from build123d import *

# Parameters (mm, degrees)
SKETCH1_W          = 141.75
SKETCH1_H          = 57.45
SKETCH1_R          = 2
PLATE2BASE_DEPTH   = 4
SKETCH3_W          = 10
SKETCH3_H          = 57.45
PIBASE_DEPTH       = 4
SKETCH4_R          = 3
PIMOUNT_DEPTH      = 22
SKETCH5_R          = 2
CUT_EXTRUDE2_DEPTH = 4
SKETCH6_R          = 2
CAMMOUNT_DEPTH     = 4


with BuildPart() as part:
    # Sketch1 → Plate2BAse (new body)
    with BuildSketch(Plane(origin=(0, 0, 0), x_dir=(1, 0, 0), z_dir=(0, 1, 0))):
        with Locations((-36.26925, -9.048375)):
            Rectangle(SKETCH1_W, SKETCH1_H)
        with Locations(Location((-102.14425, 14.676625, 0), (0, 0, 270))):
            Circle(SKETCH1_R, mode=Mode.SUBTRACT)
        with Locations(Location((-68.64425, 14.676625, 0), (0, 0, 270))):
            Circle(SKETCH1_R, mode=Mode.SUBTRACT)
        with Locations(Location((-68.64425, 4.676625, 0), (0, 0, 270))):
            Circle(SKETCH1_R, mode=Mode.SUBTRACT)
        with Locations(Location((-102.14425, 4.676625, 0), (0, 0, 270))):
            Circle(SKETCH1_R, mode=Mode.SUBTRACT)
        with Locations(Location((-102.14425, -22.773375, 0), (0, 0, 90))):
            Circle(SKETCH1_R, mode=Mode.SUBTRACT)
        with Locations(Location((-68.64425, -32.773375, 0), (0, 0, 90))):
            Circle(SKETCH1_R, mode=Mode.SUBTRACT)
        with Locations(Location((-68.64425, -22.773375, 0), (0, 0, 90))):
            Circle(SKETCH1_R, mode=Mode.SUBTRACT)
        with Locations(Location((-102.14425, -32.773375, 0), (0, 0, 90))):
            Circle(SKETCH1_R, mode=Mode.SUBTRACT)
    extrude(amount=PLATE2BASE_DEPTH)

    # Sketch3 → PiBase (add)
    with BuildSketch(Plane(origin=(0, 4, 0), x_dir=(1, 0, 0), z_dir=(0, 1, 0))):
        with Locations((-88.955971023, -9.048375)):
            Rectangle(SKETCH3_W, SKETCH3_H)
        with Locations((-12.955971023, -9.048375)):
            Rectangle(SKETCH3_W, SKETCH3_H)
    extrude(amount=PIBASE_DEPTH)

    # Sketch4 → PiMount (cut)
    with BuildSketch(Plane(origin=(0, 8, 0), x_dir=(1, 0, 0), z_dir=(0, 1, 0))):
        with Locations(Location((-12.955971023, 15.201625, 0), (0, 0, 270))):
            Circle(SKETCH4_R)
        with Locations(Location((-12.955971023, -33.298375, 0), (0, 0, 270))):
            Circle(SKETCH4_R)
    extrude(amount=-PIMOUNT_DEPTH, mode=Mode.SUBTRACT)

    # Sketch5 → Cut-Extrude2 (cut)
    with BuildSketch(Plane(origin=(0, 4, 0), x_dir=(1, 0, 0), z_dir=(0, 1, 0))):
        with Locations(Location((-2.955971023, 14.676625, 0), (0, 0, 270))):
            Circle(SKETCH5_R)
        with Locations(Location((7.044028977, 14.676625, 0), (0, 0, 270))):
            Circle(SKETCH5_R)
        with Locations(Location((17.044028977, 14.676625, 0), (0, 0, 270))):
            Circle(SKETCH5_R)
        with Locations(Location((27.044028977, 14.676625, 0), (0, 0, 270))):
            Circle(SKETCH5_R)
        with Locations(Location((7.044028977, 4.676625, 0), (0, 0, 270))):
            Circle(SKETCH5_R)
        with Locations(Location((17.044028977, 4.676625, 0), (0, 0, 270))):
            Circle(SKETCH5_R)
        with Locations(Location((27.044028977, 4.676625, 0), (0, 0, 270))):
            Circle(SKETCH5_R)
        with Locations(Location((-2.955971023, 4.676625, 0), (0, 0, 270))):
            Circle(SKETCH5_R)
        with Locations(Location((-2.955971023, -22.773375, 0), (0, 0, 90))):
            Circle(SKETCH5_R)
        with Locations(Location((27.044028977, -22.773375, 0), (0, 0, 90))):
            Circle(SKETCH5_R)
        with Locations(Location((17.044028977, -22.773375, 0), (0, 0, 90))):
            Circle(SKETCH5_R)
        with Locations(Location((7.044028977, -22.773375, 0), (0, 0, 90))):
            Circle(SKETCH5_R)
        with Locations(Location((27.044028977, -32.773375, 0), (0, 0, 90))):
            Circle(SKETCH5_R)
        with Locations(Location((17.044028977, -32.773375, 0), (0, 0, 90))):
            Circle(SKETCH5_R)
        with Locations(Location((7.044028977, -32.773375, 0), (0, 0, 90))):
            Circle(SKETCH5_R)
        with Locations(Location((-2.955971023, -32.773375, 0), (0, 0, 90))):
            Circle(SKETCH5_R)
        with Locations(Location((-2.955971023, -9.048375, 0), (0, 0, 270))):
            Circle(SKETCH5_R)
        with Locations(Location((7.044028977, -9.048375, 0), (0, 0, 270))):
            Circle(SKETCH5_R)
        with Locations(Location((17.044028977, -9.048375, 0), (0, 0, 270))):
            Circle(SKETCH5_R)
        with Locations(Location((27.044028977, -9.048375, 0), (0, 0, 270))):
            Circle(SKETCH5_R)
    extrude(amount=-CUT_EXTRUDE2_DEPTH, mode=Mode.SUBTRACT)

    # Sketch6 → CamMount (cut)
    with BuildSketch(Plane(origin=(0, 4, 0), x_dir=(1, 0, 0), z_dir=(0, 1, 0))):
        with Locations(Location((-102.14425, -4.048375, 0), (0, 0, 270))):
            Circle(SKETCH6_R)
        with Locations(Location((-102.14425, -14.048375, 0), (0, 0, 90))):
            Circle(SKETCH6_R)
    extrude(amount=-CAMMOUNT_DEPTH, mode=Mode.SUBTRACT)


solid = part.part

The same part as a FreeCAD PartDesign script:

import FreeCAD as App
import Part
import Sketcher
from FreeCAD import Vector
Q = App.Units.Quantity


def add_polygon(sketch, points):
    """Adds a closed chain of lines whose ends are joined by coincident constraints."""
    first, n = sketch.GeometryCount, len(points)
    for a, b in zip(points, points[1:] + points[:1]):
        sketch.addGeometry(Part.LineSegment(App.Vector(*a, 0), App.Vector(*b, 0)), False)
    for i in range(n):
        sketch.addConstraint(Sketcher.Constraint("Coincident", first + i, 2, first + (i + 1) % n, 1))

doc = App.newDocument("Part")
body = doc.addObject("PartDesign::Body", "Body")

# Sketch on XZ plane
sketch1 = doc.addObject("Sketcher::SketchObject", "Sketch")
body.addObject(sketch1)
sketch1.AttachmentSupport = (doc.XZ_Plane, [""])
sketch1.MapMode = "FlatFace"
add_polygon(sketch1, [(-107.14425, -19.676625), (-107.14425, 37.773375), (34.60575, 37.773375), (34.60575, -19.676625)])  # lines 0-3
sketch1.addGeometry(Part.Circle(Vector(-102.14425, 32.773375, 0), Vector(0, 0, 1), 2), False)  # 4
sketch1.addGeometry(Part.Circle(Vector(-102.14425, 22.773375, 0), Vector(0, 0, 1), 2), False)  # 5
sketch1.addGeometry(Part.Circle(Vector(-68.64425, 32.773375, 0), Vector(0, 0, 1), 2), False)  # 6
sketch1.addGeometry(Part.Circle(Vector(-68.64425, 22.773375, 0), Vector(0, 0, 1), 2), False)  # 7
sketch1.addGeometry(Part.Circle(Vector(-102.14425, -4.676625, 0), Vector(0, 0, 1), 2), False)  # 8
sketch1.addGeometry(Part.Circle(Vector(-102.14425, -14.676625, 0), Vector(0, 0, 1), 2), False)  # 9
sketch1.addGeometry(Part.Circle(Vector(-68.64425, -4.676625, 0), Vector(0, 0, 1), 2), False)  # 10
sketch1.addGeometry(Part.Circle(Vector(-68.64425, -14.676625, 0), Vector(0, 0, 1), 2), False)  # 11
sketch1.addConstraint(Sketcher.Constraint("Vertical", 0))
sketch1.addConstraint(Sketcher.Constraint("Horizontal", 1))
sketch1.addConstraint(Sketcher.Constraint("Vertical", 2))
sketch1.addConstraint(Sketcher.Constraint("Horizontal", 3))
sketch1.addConstraint(Sketcher.Constraint("Equal", 4, 5))
sketch1.addConstraint(Sketcher.Constraint("Equal", 5, 6))
sketch1.addConstraint(Sketcher.Constraint("Equal", 6, 7))
sketch1.addConstraint(Sketcher.Constraint("Equal", 7, 8))
sketch1.addConstraint(Sketcher.Constraint("Equal", 8, 9))
sketch1.addConstraint(Sketcher.Constraint("Equal", 9, 10))
sketch1.addConstraint(Sketcher.Constraint("Equal", 10, 11))
sketch1.addConstraint(Sketcher.Constraint("Horizontal", 4, 3, 6, 3))
sketch1.addConstraint(Sketcher.Constraint("Horizontal", 5, 3, 7, 3))
sketch1.addConstraint(Sketcher.Constraint("Horizontal", 8, 3, 10, 3))
sketch1.addConstraint(Sketcher.Constraint("Horizontal", 9, 3, 11, 3))
sketch1.addConstraint(Sketcher.Constraint("Vertical", 4, 3, 5, 3))
sketch1.addConstraint(Sketcher.Constraint("Vertical", 6, 3, 7, 3))
sketch1.addConstraint(Sketcher.Constraint("Vertical", 5, 3, 8, 3))
sketch1.addConstraint(Sketcher.Constraint("Vertical", 8, 3, 9, 3))
sketch1.addConstraint(Sketcher.Constraint("Vertical", 7, 3, 10, 3))
sketch1.addConstraint(Sketcher.Constraint("Vertical", 10, 3, 11, 3))
sketch1.addConstraint(Sketcher.Constraint("Diameter", 4, Q("4 mm")))
sketch1.addConstraint(Sketcher.Constraint("DistanceY", 5, 3, 4, 3, Q("10 mm")))
sketch1.addConstraint(Sketcher.Constraint("DistanceY", 9, 3, 8, 3, Q("10 mm")))
sketch1.addConstraint(Sketcher.Constraint("DistanceX", 0, 2, 4, 3, Q("5 mm")))
sketch1.addConstraint(Sketcher.Constraint("DistanceY", 4, 3, 0, 2, Q("5 mm")))
sketch1.addConstraint(Sketcher.Constraint("DistanceY", 2, 2, 11, 3, Q("5 mm")))
sketch1.addConstraint(Sketcher.Constraint("DistanceX", 1, 1, 1, 2, Q("141.75 mm")))
sketch1.addConstraint(Sketcher.Constraint("DistanceY", 0, 1, 0, 2, Q("57.45 mm")))
sketch1.addConstraint(Sketcher.Constraint("DistanceX", 4, 3, 6, 3, Q("33.5 mm")))
sketch1.addConstraint(Sketcher.Constraint("DistanceX", 4, 3, -1, 1, Q("102.14425 mm")))
sketch1.addConstraint(Sketcher.Constraint("DistanceY", -1, 1, 4, 3, Q("32.773375 mm")))
pad1 = doc.addObject("PartDesign::Pad", "Pad")
body.addObject(pad1)
pad1.Profile = sketch1
pad1.Length = 4
pad1.Reversed = True

# Sketch on XZ plane
sketch2 = doc.addObject("Sketcher::SketchObject", "Sketch001")
body.addObject(sketch2)
sketch2.AttachmentSupport = (doc.XZ_Plane, [""])
sketch2.MapMode = "FlatFace"
sketch2.AttachmentOffset = App.Placement(Vector(0, 0, -4), App.Rotation())
add_polygon(sketch2, [(-93.955971, -19.676625), (-93.955971, 37.773375), (-83.955971, 37.773375), (-83.955971, -19.676625)])  # lines 0-3
add_polygon(sketch2, [(-17.955971, -19.676625), (-17.955971, 37.773375), (-7.955971, 37.773375), (-7.955971, -19.676625)])  # lines 4-7
sketch2.addConstraint(Sketcher.Constraint("Vertical", 0))
sketch2.addConstraint(Sketcher.Constraint("Horizontal", 1))
sketch2.addConstraint(Sketcher.Constraint("Vertical", 2))
sketch2.addConstraint(Sketcher.Constraint("Horizontal", 3))
sketch2.addConstraint(Sketcher.Constraint("Vertical", 4))
sketch2.addConstraint(Sketcher.Constraint("Horizontal", 5))
sketch2.addConstraint(Sketcher.Constraint("Vertical", 6))
sketch2.addConstraint(Sketcher.Constraint("Horizontal", 7))
sketch2.addConstraint(Sketcher.Constraint("Horizontal", 1, 2, 4, 2))
sketch2.addConstraint(Sketcher.Constraint("Horizontal", 3, 2, 6, 2))
sketch2.addConstraint(Sketcher.Constraint("Equal", 3, 5))
sketch2.addConstraint(Sketcher.Constraint("DistanceX", 1, 1, 1, 2, Q("10 mm")))
sketch2.addConstraint(Sketcher.Constraint("DistanceX", 1, 2, 4, 2, Q("66 mm")))
sketch2.addConstraint(Sketcher.Constraint("DistanceY", 0, 1, 0, 2, Q("57.45 mm")))
sketch2.addConstraint(Sketcher.Constraint("DistanceX", 0, 2, -1, 1, Q("93.955971 mm")))
sketch2.addConstraint(Sketcher.Constraint("DistanceY", -1, 1, 0, 2, Q("37.773375 mm")))
pad2 = doc.addObject("PartDesign::Pad", "Pad001")
body.addObject(pad2)
pad2.Profile = sketch2
pad2.Length = 4
pad2.Reversed = True

# Sketch on XZ plane
sketch3 = doc.addObject("Sketcher::SketchObject", "Sketch002")
body.addObject(sketch3)
sketch3.AttachmentSupport = (doc.XZ_Plane, [""])
sketch3.MapMode = "FlatFace"
sketch3.AttachmentOffset = App.Placement(Vector(0, 0, -8), App.Rotation())
sketch3.addGeometry(Part.Circle(Vector(-12.955971, -15.201625, 0), Vector(0, 0, 1), 3), False)
sketch3.addGeometry(Part.Circle(Vector(-12.955971, 33.298375, 0), Vector(0, 0, 1), 3), False)
sketch3.addConstraint(Sketcher.Constraint("Equal", 0, 1))
sketch3.addConstraint(Sketcher.Constraint("Vertical", 0, 3, 1, 3))
sketch3.addConstraint(Sketcher.Constraint("Diameter", 0, Q("6 mm")))
sketch3.addConstraint(Sketcher.Constraint("DistanceY", 0, 3, 1, 3, Q("48.5 mm")))
sketch3.addConstraint(Sketcher.Constraint("DistanceX", 0, 3, -1, 1, Q("12.955971 mm")))
sketch3.addConstraint(Sketcher.Constraint("DistanceY", 0, 3, -1, 1, Q("15.201625 mm")))
pocket1 = doc.addObject("PartDesign::Pocket", "Pocket")
body.addObject(pocket1)
pocket1.Profile = sketch3
pocket1.Length = 22
pocket1.Reversed = True

# Sketch on XZ plane
sketch4 = doc.addObject("Sketcher::SketchObject", "Sketch003")
body.addObject(sketch4)
sketch4.AttachmentSupport = (doc.XZ_Plane, [""])
sketch4.MapMode = "FlatFace"
sketch4.AttachmentOffset = App.Placement(Vector(0, 0, -4), App.Rotation())
sketch4.addGeometry(Part.Circle(Vector(-2.955971, -14.676625, 0), Vector(0, 0, 1), 2), False)
sketch4.addGeometry(Part.Circle(Vector(7.044029, -14.676625, 0), Vector(0, 0, 1), 2), False)
sketch4.addGeometry(Part.Circle(Vector(17.044029, -14.676625, 0), Vector(0, 0, 1), 2), False)
sketch4.addGeometry(Part.Circle(Vector(27.044029, -14.676625, 0), Vector(0, 0, 1), 2), False)
sketch4.addGeometry(Part.Circle(Vector(7.044029, -4.676625, 0), Vector(0, 0, 1), 2), False)
sketch4.addGeometry(Part.Circle(Vector(17.044029, -4.676625, 0), Vector(0, 0, 1), 2), False)
sketch4.addGeometry(Part.Circle(Vector(27.044029, -4.676625, 0), Vector(0, 0, 1), 2), False)
sketch4.addGeometry(Part.Circle(Vector(-2.955971, -4.676625, 0), Vector(0, 0, 1), 2), False)
sketch4.addGeometry(Part.Circle(Vector(-2.955971, 22.773375, 0), Vector(0, 0, 1), 2), False)
sketch4.addGeometry(Part.Circle(Vector(27.044029, 22.773375, 0), Vector(0, 0, 1), 2), False)
sketch4.addGeometry(Part.Circle(Vector(17.044029, 22.773375, 0), Vector(0, 0, 1), 2), False)
sketch4.addGeometry(Part.Circle(Vector(7.044029, 22.773375, 0), Vector(0, 0, 1), 2), False)
sketch4.addGeometry(Part.Circle(Vector(27.044029, 32.773375, 0), Vector(0, 0, 1), 2), False)
sketch4.addGeometry(Part.Circle(Vector(17.044029, 32.773375, 0), Vector(0, 0, 1), 2), False)
sketch4.addGeometry(Part.Circle(Vector(7.044029, 32.773375, 0), Vector(0, 0, 1), 2), False)
sketch4.addGeometry(Part.Circle(Vector(-2.955971, 32.773375, 0), Vector(0, 0, 1), 2), False)
sketch4.addGeometry(Part.Circle(Vector(-2.955971, 9.048375, 0), Vector(0, 0, 1), 2), False)
sketch4.addGeometry(Part.Circle(Vector(7.044029, 9.048375, 0), Vector(0, 0, 1), 2), False)
sketch4.addGeometry(Part.Circle(Vector(17.044029, 9.048375, 0), Vector(0, 0, 1), 2), False)
sketch4.addGeometry(Part.Circle(Vector(27.044029, 9.048375, 0), Vector(0, 0, 1), 2), False)
sketch4.addConstraint(Sketcher.Constraint("Equal", 0, 1))
sketch4.addConstraint(Sketcher.Constraint("Equal", 1, 2))
sketch4.addConstraint(Sketcher.Constraint("Equal", 2, 3))
sketch4.addConstraint(Sketcher.Constraint("Equal", 3, 4))
sketch4.addConstraint(Sketcher.Constraint("Equal", 4, 5))
sketch4.addConstraint(Sketcher.Constraint("Equal", 5, 6))
sketch4.addConstraint(Sketcher.Constraint("Equal", 6, 7))
sketch4.addConstraint(Sketcher.Constraint("Equal", 7, 8))
sketch4.addConstraint(Sketcher.Constraint("Equal", 8, 9))
sketch4.addConstraint(Sketcher.Constraint("Equal", 9, 10))
sketch4.addConstraint(Sketcher.Constraint("Equal", 10, 11))
sketch4.addConstraint(Sketcher.Constraint("Equal", 11, 12))
sketch4.addConstraint(Sketcher.Constraint("Equal", 12, 13))
sketch4.addConstraint(Sketcher.Constraint("Equal", 13, 14))
sketch4.addConstraint(Sketcher.Constraint("Equal", 14, 15))
sketch4.addConstraint(Sketcher.Constraint("Equal", 15, 16))
sketch4.addConstraint(Sketcher.Constraint("Equal", 16, 17))
sketch4.addConstraint(Sketcher.Constraint("Equal", 17, 18))
sketch4.addConstraint(Sketcher.Constraint("Equal", 18, 19))
sketch4.addConstraint(Sketcher.Constraint("Horizontal", 0, 3, 1, 3))
sketch4.addConstraint(Sketcher.Constraint("Horizontal", 1, 3, 2, 3))
sketch4.addConstraint(Sketcher.Constraint("Horizontal", 2, 3, 3, 3))
sketch4.addConstraint(Sketcher.Constraint("Horizontal", 4, 3, 5, 3))
sketch4.addConstraint(Sketcher.Constraint("Horizontal", 5, 3, 6, 3))
sketch4.addConstraint(Sketcher.Constraint("Horizontal", 6, 3, 7, 3))
sketch4.addConstraint(Sketcher.Constraint("Horizontal", 8, 3, 9, 3))
sketch4.addConstraint(Sketcher.Constraint("Horizontal", 9, 3, 10, 3))
sketch4.addConstraint(Sketcher.Constraint("Horizontal", 10, 3, 11, 3))
sketch4.addConstraint(Sketcher.Constraint("Horizontal", 12, 3, 13, 3))
sketch4.addConstraint(Sketcher.Constraint("Horizontal", 13, 3, 14, 3))
sketch4.addConstraint(Sketcher.Constraint("Horizontal", 14, 3, 15, 3))
sketch4.addConstraint(Sketcher.Constraint("Horizontal", 16, 3, 17, 3))
sketch4.addConstraint(Sketcher.Constraint("Horizontal", 17, 3, 18, 3))
sketch4.addConstraint(Sketcher.Constraint("Horizontal", 18, 3, 19, 3))
sketch4.addConstraint(Sketcher.Constraint("Vertical", 1, 3, 4, 3))
sketch4.addConstraint(Sketcher.Constraint("Vertical", 2, 3, 5, 3))
sketch4.addConstraint(Sketcher.Constraint("Vertical", 3, 3, 6, 3))
sketch4.addConstraint(Sketcher.Constraint("Vertical", 0, 3, 7, 3))
sketch4.addConstraint(Sketcher.Constraint("Vertical", 7, 3, 8, 3))
sketch4.addConstraint(Sketcher.Constraint("Vertical", 6, 3, 9, 3))
sketch4.addConstraint(Sketcher.Constraint("Vertical", 5, 3, 10, 3))
sketch4.addConstraint(Sketcher.Constraint("Vertical", 4, 3, 11, 3))
sketch4.addConstraint(Sketcher.Constraint("Vertical", 9, 3, 12, 3))
sketch4.addConstraint(Sketcher.Constraint("Vertical", 10, 3, 13, 3))
sketch4.addConstraint(Sketcher.Constraint("Vertical", 11, 3, 14, 3))
sketch4.addConstraint(Sketcher.Constraint("Vertical", 8, 3, 15, 3))
sketch4.addConstraint(Sketcher.Constraint("Vertical", 15, 3, 16, 3))
sketch4.addConstraint(Sketcher.Constraint("Vertical", 14, 3, 17, 3))
sketch4.addConstraint(Sketcher.Constraint("Vertical", 13, 3, 18, 3))
sketch4.addConstraint(Sketcher.Constraint("Vertical", 12, 3, 19, 3))
sketch4.addConstraint(Sketcher.Constraint("Diameter", 0, Q("4 mm")))
sketch4.addConstraint(Sketcher.Constraint("DistanceX", 0, 3, 1, 3, Q("10 mm")))
sketch4.addConstraint(Sketcher.Constraint("DistanceX", 1, 3, 2, 3, Q("10 mm")))
sketch4.addConstraint(Sketcher.Constraint("DistanceX", 2, 3, 3, 3, Q("10 mm")))
sketch4.addConstraint(Sketcher.Constraint("DistanceY", 1, 3, 4, 3, Q("10 mm")))
sketch4.addConstraint(Sketcher.Constraint("DistanceY", 9, 3, 12, 3, Q("10 mm")))
sketch4.addConstraint(Sketcher.Constraint("DistanceY", 7, 3, 8, 3, Q("27.45 mm")))
sketch4.addConstraint(Sketcher.Constraint("DistanceY", 7, 3, 16, 3, Q("13.725 mm")))
sketch4.addConstraint(Sketcher.Constraint("DistanceX", 0, 3, -1, 1, Q("2.955971 mm")))
sketch4.addConstraint(Sketcher.Constraint("DistanceY", 0, 3, -1, 1, Q("14.676625 mm")))
pocket2 = doc.addObject("PartDesign::Pocket", "Pocket001")
body.addObject(pocket2)
pocket2.Profile = sketch4
pocket2.Length = 4
pocket2.Reversed = True

# Sketch on XZ plane
sketch5 = doc.addObject("Sketcher::SketchObject", "Sketch004")
body.addObject(sketch5)
sketch5.AttachmentSupport = (doc.XZ_Plane, [""])
sketch5.MapMode = "FlatFace"
sketch5.AttachmentOffset = App.Placement(Vector(0, 0, -4), App.Rotation())
sketch5.addGeometry(Part.Circle(Vector(-102.14425, 4.048375, 0), Vector(0, 0, 1), 2), False)
sketch5.addGeometry(Part.Circle(Vector(-102.14425, 14.048375, 0), Vector(0, 0, 1), 2), False)
sketch5.addConstraint(Sketcher.Constraint("Equal", 0, 1))
sketch5.addConstraint(Sketcher.Constraint("Vertical", 0, 3, 1, 3))
sketch5.addConstraint(Sketcher.Constraint("Diameter", 0, Q("4 mm")))
sketch5.addConstraint(Sketcher.Constraint("DistanceY", 0, 3, 1, 3, Q("10 mm")))
sketch5.addConstraint(Sketcher.Constraint("DistanceX", 0, 3, -1, 1, Q("102.14425 mm")))
sketch5.addConstraint(Sketcher.Constraint("DistanceY", -1, 1, 0, 3, Q("4.048375 mm")))
pocket3 = doc.addObject("PartDesign::Pocket", "Pocket002")
body.addObject(pocket3)
pocket3.Profile = sketch5
pocket3.Length = 4
pocket3.Reversed = True

doc.recompute()
